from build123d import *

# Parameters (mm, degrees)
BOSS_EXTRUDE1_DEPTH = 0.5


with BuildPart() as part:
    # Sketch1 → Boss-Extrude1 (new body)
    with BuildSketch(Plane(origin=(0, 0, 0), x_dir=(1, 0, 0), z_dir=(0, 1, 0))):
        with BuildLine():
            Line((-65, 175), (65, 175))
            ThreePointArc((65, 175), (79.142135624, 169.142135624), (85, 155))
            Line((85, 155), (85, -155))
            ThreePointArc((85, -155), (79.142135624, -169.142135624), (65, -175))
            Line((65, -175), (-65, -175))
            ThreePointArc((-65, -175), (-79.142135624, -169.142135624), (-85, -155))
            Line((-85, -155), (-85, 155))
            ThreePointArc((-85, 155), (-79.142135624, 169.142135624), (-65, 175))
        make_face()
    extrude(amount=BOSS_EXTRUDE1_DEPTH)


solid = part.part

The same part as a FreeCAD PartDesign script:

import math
import FreeCAD as App
import Part
import Sketcher

doc = App.newDocument("Part")
body = doc.addObject("PartDesign::Body", "Body")

# Sketch on XZ plane
sketch1 = doc.addObject("Sketcher::SketchObject", "Sketch")
body.addObject(sketch1)
sketch1.AttachmentSupport = (doc.XZ_Plane, [""])
sketch1.MapMode = "FlatFace"
sketch1.addGeometry(Part.LineSegment(App.Vector(65, -175, 0), App.Vector(-65, -175, 0)), False)
sketch1.addGeometry(Part.ArcOfCircle(Part.Circle(App.Vector(-65, -155, 0), App.Vector(0, 0, 1), 20), math.radians(180), math.radians(270)), False)
sketch1.addGeometry(Part.LineSegment(App.Vector(-85, -155, 0), App.Vector(-85, 155, 0)), False)
sketch1.addGeometry(Part.ArcOfCircle(Part.Circle(App.Vector(-65, 155, 0), App.Vector(0, 0, 1), 20), math.radians(90), math.radians(180)), False)
sketch1.addGeometry(Part.LineSegment(App.Vector(-65, 175, 0), App.Vector(65, 175, 0)), False)
sketch1.addGeometry(Part.ArcOfCircle(Part.Circle(App.Vector(65, 155, 0), App.Vector(0, 0, 1), 20), math.radians(0), math.radians(90)), False)
sketch1.addGeometry(Part.LineSegment(App.Vector(85, 155, 0), App.Vector(85, -155, 0)), False)
sketch1.addGeometry(Part.ArcOfCircle(Part.Circle(App.Vector(65, -155, 0), App.Vector(0, 0, 1), 20), math.radians(-90), math.radians(0)), False)
sketch1.addConstraint(Sketcher.Constraint("Tangent", 0, 2, 1, 2))
sketch1.addConstraint(Sketcher.Constraint("Tangent", 1, 1, 2, 1))
sketch1.addConstraint(Sketcher.Constraint("Tangent", 2, 2, 3, 2))
sketch1.addConstraint(Sketcher.Constraint("Tangent", 3, 1, 4, 1))
sketch1.addConstraint(Sketcher.Constraint("Tangent", 4, 2, 5, 2))
sketch1.addConstraint(Sketcher.Constraint("Tangent", 5, 1, 6, 1))
sketch1.addConstraint(Sketcher.Constraint("Tangent", 6, 2, 7, 2))
sketch1.addConstraint(Sketcher.Constraint("Tangent", 7, 1, 0, 1))
sketch1.addConstraint(Sketcher.Constraint("Horizontal", 0))
sketch1.addConstraint(Sketcher.Constraint("Vertical", 2))
sketch1.addConstraint(Sketcher.Constraint("Horizontal", 4))
sketch1.addConstraint(Sketcher.Constraint("Vertical", 6))
sketch1.addConstraint(Sketcher.Constraint("Equal", 1, 3))
sketch1.addConstraint(Sketcher.Constraint("Equal", 3, 5))
sketch1.addConstraint(Sketcher.Constraint("Equal", 5, 7))
sketch1.addConstraint(Sketcher.Constraint("Symmetric", 1, 3, 5, 3, -1, 1))
sketch1.addConstraint(Sketcher.Constraint("Radius", 1, 20.0))
sketch1.addConstraint(Sketcher.Constraint("DistanceX", 0, 2, 0, 1, 130.0))
sketch1.addConstraint(Sketcher.Constraint("DistanceY", 2, 1, 2, 2, 310.0))
pad1 = doc.addObject("PartDesign::Pad", "Pad")
body.addObject(pad1)
pad1.Profile = sketch1
pad1.Length = 0.5
pad1.Reversed = True

doc.recompute()
